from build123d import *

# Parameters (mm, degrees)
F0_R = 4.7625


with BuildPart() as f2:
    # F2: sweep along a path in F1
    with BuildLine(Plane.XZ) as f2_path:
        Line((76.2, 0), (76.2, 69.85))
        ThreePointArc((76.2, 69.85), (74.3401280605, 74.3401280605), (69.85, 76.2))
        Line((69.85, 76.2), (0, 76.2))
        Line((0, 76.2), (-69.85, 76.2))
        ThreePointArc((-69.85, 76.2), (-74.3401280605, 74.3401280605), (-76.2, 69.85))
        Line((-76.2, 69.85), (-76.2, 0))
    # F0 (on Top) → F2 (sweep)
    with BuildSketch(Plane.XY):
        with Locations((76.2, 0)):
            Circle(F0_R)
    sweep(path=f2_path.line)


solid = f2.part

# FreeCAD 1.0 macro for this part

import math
import FreeCAD as App
import Part
import Sketcher

V = App.Vector
Q = App.Units.Quantity

doc = App.newDocument("Part")
body = doc.addObject("PartDesign::Body", "Body")

# Sketch on XY plane
sketch1 = body.newObject("Sketcher::SketchObject", "Sketch")
sketch1.AttachmentSupport = (doc.getObject("XY_Plane"), [""])
sketch1.MapMode = "FlatFace"
sketch1.addGeometry(Part.Circle(V(76.2, 0, 0), V(0, 0, 1), 4.7625), False)
sketch1.addConstraint([
    Sketcher.Constraint("PointOnObject", 0, 3, -1),
    Sketcher.Constraint("Diameter", 0, Q("0.375 in")),
    Sketcher.Constraint("DistanceX", -1, 1, 0, 3, Q("3 in")),
])

# Sketch on XZ plane
sketch2 = body.newObject("Sketcher::SketchObject", "Sketch001")
sketch2.AttachmentSupport = (doc.getObject("XZ_Plane"), [""])
sketch2.MapMode = "FlatFace"
sketch2.addGeometry([
    Part.LineSegment(V(76.2, 0, 0), V(76.2, 69.85, 0)),  # 0
    Part.ArcOfCircle(Part.Circle(V(69.85, 69.85, 0), V(0, 0, 1), 6.35), math.radians(0), math.radians(90)),  # 1
    Part.LineSegment(V(69.85, 76.2, 0), V(-69.85, 76.2, 0)),  # 2
    Part.ArcOfCircle(Part.Circle(V(-69.85, 69.85, 0), V(0, 0, 1), 6.35), math.radians(90), math.radians(180)),  # 3
    Part.LineSegment(V(-76.2, 69.85, 0), V(-76.2, 0, 0)),  # 4
], False)
sketch2.addConstraint([
    Sketcher.Constraint("Tangent", 0, 2, 1, 1),
    Sketcher.Constraint("Tangent", 1, 2, 2, 1),
    Sketcher.Constraint("Tangent", 2, 2, 3, 1),
    Sketcher.Constraint("Tangent", 3, 2, 4, 1),
    Sketcher.Constraint("Vertical", 0),
    Sketcher.Constraint("Horizontal", 2),
    Sketcher.Constraint("Vertical", 4),
    Sketcher.Constraint("Equal", 1, 3),
    Sketcher.Constraint("Symmetric", 0, 1, 4, 2, -1, 1),
    Sketcher.Constraint("PointOnObject", 0, 1, -1),
    Sketcher.Constraint("Radius", 1, Q("0.25 in")),
    Sketcher.Constraint("DistanceX", 2, 2, 2, 1, Q("5.5 in")),
    Sketcher.Constraint("DistanceY", -1, 1, 1, 2, Q("3 in")),
])
doc.recompute()

additivepipe = body.newObject("PartDesign::AdditivePipe", "AdditivePipe")
additivepipe.Profile = sketch1
additivepipe.Spine = (sketch2, ["Edge1", "Edge2", "Edge3", "Edge4", "Edge5"])

doc.recompute()
